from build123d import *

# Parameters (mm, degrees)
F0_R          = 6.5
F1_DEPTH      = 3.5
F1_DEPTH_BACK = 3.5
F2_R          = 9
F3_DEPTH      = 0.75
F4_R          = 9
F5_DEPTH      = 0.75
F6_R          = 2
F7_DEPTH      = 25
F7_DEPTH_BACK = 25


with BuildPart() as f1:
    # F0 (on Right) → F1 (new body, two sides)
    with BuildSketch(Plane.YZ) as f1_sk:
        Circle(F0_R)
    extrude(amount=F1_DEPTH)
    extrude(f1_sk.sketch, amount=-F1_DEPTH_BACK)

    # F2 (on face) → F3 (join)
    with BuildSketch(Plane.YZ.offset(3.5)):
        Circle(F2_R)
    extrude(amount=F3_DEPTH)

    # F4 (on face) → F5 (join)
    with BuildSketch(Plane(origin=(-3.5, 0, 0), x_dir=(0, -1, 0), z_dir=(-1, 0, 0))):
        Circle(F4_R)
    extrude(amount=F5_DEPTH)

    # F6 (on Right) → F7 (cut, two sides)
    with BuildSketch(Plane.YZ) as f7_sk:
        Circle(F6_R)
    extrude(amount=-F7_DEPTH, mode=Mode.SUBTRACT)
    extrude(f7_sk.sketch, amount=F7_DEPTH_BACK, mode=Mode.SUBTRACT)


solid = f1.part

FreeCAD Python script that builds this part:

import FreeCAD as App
import Part
import Sketcher

V = App.Vector
Q = App.Units.Quantity

doc = App.newDocument("Part")
body = doc.addObject("PartDesign::Body", "Body")

sketch1 = body.newObject("Sketcher::SketchObject", "Sketch")
sketch1.AttachmentSupport = (doc.getObject("YZ_Plane"), [""])
sketch1.MapMode = "FlatFace"
sketch1.addGeometry(Part.Circle(V(0, 0, 0), V(0, 0, 1), 6), False)
sketch1.addConstraint([
    Sketcher.Constraint("Coincident", 0, 3, -1, 1),
    Sketcher.Constraint("Diameter", 0, Q("13 mm")),
])
pad1 = body.newObject("PartDesign::Pad", "Pad")
pad1.Profile = sketch1
pad1.Type = "TwoLengths"
pad1.Length = 3.5
pad1.Length2 = 3.5

sketch2 = body.newObject("Sketcher::SketchObject", "Sketch001")
sketch2.AttachmentSupport = (doc.getObject("YZ_Plane"), [""])
sketch2.MapMode = "FlatFace"
sketch2.AttachmentOffset = App.Placement(V(0, 0, 3.5), App.Rotation())
sketch2.addGeometry(Part.Circle(V(0, 0, 0), V(0, 0, 1), 9), False)
sketch2.addConstraint([
    Sketcher.Constraint("Coincident", 0, 3, -1, 1),
    Sketcher.Constraint("Diameter", 0, Q("18 mm")),
])
pad2 = body.newObject("PartDesign::Pad", "Pad001")
pad2.Profile = sketch2
pad2.Length = 0.75

sketch3 = body.newObject("Sketcher::SketchObject", "Sketch002")
sketch3.AttachmentSupport = (doc.getObject("YZ_Plane"), [""])
sketch3.MapMode = "FlatFace"
sketch3.AttachmentOffset = App.Placement(V(0, 0, -3.5), App.Rotation())
sketch3.addGeometry(Part.Circle(V(0, 0, 0), V(0, 0, 1), 9), False)
sketch3.addConstraint([
    Sketcher.Constraint("Coincident", 0, 3, -1, 1),
    Sketcher.Constraint("Diameter", 0, Q("18 mm")),
])
pad3 = body.newObject("PartDesign::Pad", "Pad002")
pad3.Profile = sketch3
pad3.Length = 0.75
pad3.Reversed = True

sketch4 = body.newObject("Sketcher::SketchObject", "Sketch003")
sketch4.AttachmentSupport = (doc.getObject("YZ_Plane"), [""])
sketch4.MapMode = "FlatFace"
sketch4.addGeometry(Part.Circle(V(0, 0, 0), V(0, 0, 1), 2), False)
sketch4.addConstraint([
    Sketcher.Constraint("Coincident", 0, 3, -1, 1),
    Sketcher.Constraint("Diameter", 0, Q("4 mm")),
])
pocket1 = body.newObject("PartDesign::Pocket", "Pocket")
pocket1.Profile = sketch4
pocket1.Type = "ThroughAll"
pocket1.Midplane = True

doc.recompute()
